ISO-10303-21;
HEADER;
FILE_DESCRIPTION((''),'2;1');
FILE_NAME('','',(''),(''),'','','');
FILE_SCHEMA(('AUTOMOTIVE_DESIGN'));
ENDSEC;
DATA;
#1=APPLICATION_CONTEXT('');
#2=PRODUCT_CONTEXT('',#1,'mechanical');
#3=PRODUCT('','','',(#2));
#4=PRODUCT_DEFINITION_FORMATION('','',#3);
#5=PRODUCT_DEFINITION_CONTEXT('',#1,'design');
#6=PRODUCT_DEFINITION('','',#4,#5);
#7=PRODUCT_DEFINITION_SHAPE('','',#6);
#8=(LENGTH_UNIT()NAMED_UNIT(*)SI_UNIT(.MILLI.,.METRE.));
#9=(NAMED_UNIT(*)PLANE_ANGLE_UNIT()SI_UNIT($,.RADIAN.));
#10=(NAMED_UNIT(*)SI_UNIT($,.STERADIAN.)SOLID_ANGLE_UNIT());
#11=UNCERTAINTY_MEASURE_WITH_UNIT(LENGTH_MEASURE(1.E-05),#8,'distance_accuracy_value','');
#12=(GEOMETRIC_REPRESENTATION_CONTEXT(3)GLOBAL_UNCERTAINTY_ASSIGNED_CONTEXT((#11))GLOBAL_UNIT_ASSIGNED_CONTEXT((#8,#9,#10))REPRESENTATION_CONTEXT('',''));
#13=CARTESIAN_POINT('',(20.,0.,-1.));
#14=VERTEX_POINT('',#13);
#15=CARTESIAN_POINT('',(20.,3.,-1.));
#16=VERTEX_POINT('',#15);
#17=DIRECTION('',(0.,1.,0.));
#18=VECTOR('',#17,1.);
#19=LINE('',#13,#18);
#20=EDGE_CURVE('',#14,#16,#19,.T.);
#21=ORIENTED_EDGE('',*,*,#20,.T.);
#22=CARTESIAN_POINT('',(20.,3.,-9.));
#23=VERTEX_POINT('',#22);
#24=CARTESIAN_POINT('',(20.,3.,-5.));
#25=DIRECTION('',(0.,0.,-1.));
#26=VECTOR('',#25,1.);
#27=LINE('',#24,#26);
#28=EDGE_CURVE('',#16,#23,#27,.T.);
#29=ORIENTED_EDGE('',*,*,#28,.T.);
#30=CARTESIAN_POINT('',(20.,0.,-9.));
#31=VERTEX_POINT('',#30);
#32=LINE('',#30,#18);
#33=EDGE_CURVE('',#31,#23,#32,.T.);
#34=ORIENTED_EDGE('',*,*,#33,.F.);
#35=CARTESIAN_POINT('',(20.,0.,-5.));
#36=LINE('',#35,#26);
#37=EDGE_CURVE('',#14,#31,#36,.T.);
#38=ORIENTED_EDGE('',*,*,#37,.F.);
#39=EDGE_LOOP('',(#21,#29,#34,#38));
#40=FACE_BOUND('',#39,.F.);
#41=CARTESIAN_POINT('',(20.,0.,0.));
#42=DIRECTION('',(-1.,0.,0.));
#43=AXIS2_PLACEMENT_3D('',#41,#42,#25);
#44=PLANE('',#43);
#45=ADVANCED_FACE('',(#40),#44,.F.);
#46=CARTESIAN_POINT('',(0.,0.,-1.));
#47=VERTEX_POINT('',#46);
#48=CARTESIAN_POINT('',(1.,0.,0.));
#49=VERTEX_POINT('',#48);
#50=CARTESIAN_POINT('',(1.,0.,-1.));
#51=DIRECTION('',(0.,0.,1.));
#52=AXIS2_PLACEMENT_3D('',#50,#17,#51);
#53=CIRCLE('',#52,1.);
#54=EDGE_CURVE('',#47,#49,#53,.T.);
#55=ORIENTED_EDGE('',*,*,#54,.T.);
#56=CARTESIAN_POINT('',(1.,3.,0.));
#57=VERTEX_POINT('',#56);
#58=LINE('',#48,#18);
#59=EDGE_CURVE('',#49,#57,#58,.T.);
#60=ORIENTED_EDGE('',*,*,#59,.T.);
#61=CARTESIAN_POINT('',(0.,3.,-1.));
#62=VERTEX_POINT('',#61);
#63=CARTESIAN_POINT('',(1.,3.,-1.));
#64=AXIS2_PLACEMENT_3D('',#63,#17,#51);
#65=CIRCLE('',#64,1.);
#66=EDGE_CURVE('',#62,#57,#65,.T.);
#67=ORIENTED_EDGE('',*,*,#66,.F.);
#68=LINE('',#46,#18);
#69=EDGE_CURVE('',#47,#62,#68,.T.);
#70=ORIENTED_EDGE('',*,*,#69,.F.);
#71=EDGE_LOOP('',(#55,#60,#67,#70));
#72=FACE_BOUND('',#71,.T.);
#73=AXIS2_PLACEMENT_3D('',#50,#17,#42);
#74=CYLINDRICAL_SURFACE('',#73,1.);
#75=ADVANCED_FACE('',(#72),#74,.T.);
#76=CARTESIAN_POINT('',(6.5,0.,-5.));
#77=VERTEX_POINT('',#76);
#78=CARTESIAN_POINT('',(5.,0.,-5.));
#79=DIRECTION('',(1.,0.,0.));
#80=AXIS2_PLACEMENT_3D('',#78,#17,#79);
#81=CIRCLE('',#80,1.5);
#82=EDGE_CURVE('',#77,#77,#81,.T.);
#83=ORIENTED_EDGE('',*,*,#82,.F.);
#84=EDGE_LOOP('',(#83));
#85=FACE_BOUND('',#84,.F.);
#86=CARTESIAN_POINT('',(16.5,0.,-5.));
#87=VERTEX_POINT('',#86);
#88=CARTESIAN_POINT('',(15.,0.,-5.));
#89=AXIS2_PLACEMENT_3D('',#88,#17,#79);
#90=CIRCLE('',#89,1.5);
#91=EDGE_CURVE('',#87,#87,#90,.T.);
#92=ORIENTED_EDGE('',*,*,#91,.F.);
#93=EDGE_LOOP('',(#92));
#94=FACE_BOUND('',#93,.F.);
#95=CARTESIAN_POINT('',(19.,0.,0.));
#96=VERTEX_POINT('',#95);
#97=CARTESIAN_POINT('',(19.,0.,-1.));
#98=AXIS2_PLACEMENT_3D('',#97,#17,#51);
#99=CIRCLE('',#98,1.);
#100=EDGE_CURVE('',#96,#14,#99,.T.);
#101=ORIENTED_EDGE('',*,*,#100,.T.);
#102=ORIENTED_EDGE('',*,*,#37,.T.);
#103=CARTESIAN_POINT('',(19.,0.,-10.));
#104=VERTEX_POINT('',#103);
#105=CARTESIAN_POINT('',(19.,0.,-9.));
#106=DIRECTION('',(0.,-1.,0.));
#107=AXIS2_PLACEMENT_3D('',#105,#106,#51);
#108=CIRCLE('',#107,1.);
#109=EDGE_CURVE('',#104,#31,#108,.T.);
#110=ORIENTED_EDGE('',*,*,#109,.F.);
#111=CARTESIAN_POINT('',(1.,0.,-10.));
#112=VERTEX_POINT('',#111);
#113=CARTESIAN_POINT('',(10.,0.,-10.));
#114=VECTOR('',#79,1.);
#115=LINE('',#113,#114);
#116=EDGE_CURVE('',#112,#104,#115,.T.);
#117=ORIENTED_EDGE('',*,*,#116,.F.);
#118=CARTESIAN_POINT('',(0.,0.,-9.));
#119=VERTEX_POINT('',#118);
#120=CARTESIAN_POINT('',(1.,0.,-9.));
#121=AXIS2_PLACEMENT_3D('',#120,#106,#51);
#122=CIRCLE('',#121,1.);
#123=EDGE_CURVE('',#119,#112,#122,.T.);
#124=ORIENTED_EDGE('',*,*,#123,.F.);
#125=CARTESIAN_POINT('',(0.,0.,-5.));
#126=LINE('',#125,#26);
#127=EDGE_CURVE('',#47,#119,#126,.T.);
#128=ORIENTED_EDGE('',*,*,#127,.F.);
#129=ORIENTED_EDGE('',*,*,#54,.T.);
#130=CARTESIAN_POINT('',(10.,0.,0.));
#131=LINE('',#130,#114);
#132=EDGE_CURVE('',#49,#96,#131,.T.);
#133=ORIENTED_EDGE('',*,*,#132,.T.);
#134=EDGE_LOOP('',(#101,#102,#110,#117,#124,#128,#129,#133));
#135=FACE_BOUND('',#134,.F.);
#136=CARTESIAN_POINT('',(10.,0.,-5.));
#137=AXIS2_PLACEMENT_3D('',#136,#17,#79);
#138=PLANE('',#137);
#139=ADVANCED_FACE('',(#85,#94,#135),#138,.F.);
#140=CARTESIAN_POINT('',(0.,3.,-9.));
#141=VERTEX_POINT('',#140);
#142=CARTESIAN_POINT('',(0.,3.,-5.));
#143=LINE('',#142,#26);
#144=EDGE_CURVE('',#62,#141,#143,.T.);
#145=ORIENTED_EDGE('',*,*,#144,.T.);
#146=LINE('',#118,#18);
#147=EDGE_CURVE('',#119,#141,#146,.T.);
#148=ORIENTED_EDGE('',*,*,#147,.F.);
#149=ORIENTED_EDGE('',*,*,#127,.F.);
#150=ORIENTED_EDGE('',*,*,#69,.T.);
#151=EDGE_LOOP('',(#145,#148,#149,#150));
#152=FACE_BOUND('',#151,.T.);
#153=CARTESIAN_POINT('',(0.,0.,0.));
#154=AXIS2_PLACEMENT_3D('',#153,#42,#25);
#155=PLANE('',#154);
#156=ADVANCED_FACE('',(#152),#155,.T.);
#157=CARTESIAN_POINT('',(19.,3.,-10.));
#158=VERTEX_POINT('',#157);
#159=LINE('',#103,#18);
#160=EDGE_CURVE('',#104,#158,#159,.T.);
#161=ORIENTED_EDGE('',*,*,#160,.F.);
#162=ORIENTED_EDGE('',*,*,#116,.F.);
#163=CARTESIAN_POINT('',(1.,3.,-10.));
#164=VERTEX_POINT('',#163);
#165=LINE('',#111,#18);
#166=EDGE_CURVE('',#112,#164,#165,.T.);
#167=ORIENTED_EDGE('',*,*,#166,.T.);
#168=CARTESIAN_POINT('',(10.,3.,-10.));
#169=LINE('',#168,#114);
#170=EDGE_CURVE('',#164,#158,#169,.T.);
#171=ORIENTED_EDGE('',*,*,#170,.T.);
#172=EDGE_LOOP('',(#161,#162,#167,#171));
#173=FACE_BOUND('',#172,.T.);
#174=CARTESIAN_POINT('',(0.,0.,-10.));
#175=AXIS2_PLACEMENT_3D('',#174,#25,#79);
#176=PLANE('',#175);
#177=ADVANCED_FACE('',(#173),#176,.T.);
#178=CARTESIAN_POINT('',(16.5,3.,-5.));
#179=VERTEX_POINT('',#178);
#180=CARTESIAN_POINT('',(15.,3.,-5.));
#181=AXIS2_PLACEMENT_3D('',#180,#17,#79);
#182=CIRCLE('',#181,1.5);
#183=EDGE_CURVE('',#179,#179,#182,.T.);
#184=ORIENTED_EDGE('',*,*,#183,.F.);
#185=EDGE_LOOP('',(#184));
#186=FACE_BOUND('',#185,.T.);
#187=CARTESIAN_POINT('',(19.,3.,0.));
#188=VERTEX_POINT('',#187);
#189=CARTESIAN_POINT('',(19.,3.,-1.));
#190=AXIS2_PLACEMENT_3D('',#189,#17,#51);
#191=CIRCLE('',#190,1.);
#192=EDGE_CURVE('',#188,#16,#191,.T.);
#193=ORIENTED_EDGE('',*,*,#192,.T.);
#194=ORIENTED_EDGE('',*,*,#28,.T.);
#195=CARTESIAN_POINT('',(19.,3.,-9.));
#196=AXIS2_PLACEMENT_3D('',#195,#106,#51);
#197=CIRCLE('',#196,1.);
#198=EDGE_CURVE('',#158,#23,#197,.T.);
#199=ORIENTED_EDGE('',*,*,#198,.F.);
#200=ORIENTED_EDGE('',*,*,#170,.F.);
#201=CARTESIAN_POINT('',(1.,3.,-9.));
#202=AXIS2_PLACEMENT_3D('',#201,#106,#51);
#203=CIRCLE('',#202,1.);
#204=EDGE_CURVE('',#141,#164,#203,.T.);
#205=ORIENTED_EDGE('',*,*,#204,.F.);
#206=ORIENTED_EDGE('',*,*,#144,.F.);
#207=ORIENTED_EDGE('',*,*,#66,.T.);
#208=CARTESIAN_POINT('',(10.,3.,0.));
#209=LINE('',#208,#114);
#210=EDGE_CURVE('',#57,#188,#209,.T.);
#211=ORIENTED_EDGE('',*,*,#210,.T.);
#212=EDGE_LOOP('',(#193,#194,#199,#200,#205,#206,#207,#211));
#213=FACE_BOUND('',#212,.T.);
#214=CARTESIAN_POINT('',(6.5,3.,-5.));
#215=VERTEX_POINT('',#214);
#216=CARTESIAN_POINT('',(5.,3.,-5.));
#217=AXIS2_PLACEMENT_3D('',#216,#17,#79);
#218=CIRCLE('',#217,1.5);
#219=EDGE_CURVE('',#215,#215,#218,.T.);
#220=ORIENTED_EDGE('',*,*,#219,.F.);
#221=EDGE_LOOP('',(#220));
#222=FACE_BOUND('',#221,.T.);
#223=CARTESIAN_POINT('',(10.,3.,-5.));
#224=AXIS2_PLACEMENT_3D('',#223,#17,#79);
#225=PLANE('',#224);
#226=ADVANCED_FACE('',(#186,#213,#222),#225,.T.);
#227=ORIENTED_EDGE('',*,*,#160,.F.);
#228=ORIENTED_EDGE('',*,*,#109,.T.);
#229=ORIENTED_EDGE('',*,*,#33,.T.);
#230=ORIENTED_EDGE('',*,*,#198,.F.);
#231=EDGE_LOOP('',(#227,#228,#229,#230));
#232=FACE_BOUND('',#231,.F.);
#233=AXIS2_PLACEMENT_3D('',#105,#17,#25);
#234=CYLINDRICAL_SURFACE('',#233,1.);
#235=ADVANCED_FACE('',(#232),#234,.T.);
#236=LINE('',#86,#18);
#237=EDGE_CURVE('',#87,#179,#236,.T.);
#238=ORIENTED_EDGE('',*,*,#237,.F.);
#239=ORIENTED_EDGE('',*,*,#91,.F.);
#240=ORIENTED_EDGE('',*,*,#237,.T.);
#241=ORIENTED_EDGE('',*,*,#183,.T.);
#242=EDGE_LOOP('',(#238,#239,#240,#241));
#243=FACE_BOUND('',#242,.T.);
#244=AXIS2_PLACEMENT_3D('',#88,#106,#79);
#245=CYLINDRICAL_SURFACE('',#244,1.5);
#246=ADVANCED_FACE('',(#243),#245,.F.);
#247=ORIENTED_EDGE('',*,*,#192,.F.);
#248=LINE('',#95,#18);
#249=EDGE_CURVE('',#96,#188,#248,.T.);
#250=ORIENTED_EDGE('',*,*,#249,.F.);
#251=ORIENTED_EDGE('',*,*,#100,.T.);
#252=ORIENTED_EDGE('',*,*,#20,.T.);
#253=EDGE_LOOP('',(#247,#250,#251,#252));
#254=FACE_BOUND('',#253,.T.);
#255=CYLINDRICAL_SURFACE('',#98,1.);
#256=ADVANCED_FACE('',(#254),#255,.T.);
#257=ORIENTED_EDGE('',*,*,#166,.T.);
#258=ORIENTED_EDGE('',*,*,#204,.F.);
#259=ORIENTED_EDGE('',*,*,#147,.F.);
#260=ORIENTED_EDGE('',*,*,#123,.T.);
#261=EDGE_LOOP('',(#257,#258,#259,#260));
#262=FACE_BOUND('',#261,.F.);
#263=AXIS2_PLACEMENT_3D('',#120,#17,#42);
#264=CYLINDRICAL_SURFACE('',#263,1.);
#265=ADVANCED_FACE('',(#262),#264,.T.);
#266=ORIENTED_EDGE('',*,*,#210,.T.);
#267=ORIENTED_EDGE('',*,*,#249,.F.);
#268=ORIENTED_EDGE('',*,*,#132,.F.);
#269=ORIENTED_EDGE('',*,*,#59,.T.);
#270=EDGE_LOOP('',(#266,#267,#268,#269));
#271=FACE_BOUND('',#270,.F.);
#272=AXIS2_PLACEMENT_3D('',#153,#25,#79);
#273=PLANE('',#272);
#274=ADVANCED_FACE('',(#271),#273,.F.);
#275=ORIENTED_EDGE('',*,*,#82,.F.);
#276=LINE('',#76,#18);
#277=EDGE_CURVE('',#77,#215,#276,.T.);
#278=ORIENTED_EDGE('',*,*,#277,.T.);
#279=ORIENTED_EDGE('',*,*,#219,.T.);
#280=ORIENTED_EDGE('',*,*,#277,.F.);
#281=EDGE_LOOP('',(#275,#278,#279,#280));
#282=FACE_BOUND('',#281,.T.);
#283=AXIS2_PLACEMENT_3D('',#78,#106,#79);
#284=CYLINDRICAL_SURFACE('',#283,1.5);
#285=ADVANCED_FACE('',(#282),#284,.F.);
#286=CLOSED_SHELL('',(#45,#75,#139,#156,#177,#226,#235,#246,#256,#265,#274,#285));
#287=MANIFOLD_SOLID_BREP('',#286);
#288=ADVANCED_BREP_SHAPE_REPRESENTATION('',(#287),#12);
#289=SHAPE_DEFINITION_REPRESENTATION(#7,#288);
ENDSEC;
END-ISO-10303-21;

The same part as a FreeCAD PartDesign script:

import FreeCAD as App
import Part
import Sketcher
from FreeCAD import Vector
Q = App.Units.Quantity


def edges_at(feature, points):
    """Names of the edges that pass closest to the given points."""
    edges = feature.Shape.Edges
    near = lambda p: min(range(len(edges)), key=lambda i: edges[i].distToShape(Part.Vertex(*p))[0])
    return sorted({f"Edge{near(p) + 1}" for p in points})

doc = App.newDocument("Part")
body = doc.addObject("PartDesign::Body", "Body")

sketch1 = body.newObject("Sketcher::SketchObject", "Sketch")
sketch1.AttachmentSupport = (doc.getObject("XZ_Plane"), [""])
sketch1.MapMode = "FlatFace"
sketch1.addGeometry([
    Part.LineSegment(Vector(0, -10, 0), Vector(0, 0, 0)),
    Part.LineSegment(Vector(0, 0, 0), Vector(20, 0, 0)),
    Part.LineSegment(Vector(20, 0, 0), Vector(20, -10, 0)),
    Part.LineSegment(Vector(20, -10, 0), Vector(0, -10, 0)),
    Part.Circle(Vector(5, -5, 0), Vector(0, 0, 1), 1.5),
    Part.Circle(Vector(15, -5, 0), Vector(0, 0, 1), 1.5),
], False)
sketch1.addConstraint([
    Sketcher.Constraint("Coincident", 0, 2, 1, 1),
    Sketcher.Constraint("Coincident", 1, 2, 2, 1),
    Sketcher.Constraint("Coincident", 2, 2, 3, 1),
    Sketcher.Constraint("Coincident", 3, 2, 0, 1),
    Sketcher.Constraint("Vertical", 0),
    Sketcher.Constraint("Horizontal", 1),
    Sketcher.Constraint("Vertical", 2),
    Sketcher.Constraint("Horizontal", 3),
    Sketcher.Constraint("Coincident", 0, 2, -1, 1),
    Sketcher.Constraint("Equal", 4, 5),
    Sketcher.Constraint("Horizontal", 4, 3, 5, 3),
    Sketcher.Constraint("Diameter", 4, Q("3 mm")),
    Sketcher.Constraint("DistanceX", 1, 1, 1, 2, Q("20 mm")),
    Sketcher.Constraint("DistanceY", 0, 1, 0, 2, Q("10 mm")),
    Sketcher.Constraint("DistanceX", -1, 1, 4, 3, Q("5 mm")),
    Sketcher.Constraint("DistanceY", 4, 3, -1, 1, Q("5 mm")),
    Sketcher.Constraint("DistanceX", -1, 1, 5, 3, Q("15 mm")),
])
pad1 = body.newObject("PartDesign::Pad", "Pad")
pad1.Profile = sketch1
pad1.Length = 3
pad1.Reversed = True
doc.recompute()

fillet = body.newObject("PartDesign::Fillet", "Fillet")
fillet.Base = (pad1, edges_at(pad1, [
    (0, 1.5, -10),
    (20, 1.5, -10),
    (20, 1.5, 0),
    (0, 1.5, 0),
]))
fillet.Radius = 1

doc.recompute()
